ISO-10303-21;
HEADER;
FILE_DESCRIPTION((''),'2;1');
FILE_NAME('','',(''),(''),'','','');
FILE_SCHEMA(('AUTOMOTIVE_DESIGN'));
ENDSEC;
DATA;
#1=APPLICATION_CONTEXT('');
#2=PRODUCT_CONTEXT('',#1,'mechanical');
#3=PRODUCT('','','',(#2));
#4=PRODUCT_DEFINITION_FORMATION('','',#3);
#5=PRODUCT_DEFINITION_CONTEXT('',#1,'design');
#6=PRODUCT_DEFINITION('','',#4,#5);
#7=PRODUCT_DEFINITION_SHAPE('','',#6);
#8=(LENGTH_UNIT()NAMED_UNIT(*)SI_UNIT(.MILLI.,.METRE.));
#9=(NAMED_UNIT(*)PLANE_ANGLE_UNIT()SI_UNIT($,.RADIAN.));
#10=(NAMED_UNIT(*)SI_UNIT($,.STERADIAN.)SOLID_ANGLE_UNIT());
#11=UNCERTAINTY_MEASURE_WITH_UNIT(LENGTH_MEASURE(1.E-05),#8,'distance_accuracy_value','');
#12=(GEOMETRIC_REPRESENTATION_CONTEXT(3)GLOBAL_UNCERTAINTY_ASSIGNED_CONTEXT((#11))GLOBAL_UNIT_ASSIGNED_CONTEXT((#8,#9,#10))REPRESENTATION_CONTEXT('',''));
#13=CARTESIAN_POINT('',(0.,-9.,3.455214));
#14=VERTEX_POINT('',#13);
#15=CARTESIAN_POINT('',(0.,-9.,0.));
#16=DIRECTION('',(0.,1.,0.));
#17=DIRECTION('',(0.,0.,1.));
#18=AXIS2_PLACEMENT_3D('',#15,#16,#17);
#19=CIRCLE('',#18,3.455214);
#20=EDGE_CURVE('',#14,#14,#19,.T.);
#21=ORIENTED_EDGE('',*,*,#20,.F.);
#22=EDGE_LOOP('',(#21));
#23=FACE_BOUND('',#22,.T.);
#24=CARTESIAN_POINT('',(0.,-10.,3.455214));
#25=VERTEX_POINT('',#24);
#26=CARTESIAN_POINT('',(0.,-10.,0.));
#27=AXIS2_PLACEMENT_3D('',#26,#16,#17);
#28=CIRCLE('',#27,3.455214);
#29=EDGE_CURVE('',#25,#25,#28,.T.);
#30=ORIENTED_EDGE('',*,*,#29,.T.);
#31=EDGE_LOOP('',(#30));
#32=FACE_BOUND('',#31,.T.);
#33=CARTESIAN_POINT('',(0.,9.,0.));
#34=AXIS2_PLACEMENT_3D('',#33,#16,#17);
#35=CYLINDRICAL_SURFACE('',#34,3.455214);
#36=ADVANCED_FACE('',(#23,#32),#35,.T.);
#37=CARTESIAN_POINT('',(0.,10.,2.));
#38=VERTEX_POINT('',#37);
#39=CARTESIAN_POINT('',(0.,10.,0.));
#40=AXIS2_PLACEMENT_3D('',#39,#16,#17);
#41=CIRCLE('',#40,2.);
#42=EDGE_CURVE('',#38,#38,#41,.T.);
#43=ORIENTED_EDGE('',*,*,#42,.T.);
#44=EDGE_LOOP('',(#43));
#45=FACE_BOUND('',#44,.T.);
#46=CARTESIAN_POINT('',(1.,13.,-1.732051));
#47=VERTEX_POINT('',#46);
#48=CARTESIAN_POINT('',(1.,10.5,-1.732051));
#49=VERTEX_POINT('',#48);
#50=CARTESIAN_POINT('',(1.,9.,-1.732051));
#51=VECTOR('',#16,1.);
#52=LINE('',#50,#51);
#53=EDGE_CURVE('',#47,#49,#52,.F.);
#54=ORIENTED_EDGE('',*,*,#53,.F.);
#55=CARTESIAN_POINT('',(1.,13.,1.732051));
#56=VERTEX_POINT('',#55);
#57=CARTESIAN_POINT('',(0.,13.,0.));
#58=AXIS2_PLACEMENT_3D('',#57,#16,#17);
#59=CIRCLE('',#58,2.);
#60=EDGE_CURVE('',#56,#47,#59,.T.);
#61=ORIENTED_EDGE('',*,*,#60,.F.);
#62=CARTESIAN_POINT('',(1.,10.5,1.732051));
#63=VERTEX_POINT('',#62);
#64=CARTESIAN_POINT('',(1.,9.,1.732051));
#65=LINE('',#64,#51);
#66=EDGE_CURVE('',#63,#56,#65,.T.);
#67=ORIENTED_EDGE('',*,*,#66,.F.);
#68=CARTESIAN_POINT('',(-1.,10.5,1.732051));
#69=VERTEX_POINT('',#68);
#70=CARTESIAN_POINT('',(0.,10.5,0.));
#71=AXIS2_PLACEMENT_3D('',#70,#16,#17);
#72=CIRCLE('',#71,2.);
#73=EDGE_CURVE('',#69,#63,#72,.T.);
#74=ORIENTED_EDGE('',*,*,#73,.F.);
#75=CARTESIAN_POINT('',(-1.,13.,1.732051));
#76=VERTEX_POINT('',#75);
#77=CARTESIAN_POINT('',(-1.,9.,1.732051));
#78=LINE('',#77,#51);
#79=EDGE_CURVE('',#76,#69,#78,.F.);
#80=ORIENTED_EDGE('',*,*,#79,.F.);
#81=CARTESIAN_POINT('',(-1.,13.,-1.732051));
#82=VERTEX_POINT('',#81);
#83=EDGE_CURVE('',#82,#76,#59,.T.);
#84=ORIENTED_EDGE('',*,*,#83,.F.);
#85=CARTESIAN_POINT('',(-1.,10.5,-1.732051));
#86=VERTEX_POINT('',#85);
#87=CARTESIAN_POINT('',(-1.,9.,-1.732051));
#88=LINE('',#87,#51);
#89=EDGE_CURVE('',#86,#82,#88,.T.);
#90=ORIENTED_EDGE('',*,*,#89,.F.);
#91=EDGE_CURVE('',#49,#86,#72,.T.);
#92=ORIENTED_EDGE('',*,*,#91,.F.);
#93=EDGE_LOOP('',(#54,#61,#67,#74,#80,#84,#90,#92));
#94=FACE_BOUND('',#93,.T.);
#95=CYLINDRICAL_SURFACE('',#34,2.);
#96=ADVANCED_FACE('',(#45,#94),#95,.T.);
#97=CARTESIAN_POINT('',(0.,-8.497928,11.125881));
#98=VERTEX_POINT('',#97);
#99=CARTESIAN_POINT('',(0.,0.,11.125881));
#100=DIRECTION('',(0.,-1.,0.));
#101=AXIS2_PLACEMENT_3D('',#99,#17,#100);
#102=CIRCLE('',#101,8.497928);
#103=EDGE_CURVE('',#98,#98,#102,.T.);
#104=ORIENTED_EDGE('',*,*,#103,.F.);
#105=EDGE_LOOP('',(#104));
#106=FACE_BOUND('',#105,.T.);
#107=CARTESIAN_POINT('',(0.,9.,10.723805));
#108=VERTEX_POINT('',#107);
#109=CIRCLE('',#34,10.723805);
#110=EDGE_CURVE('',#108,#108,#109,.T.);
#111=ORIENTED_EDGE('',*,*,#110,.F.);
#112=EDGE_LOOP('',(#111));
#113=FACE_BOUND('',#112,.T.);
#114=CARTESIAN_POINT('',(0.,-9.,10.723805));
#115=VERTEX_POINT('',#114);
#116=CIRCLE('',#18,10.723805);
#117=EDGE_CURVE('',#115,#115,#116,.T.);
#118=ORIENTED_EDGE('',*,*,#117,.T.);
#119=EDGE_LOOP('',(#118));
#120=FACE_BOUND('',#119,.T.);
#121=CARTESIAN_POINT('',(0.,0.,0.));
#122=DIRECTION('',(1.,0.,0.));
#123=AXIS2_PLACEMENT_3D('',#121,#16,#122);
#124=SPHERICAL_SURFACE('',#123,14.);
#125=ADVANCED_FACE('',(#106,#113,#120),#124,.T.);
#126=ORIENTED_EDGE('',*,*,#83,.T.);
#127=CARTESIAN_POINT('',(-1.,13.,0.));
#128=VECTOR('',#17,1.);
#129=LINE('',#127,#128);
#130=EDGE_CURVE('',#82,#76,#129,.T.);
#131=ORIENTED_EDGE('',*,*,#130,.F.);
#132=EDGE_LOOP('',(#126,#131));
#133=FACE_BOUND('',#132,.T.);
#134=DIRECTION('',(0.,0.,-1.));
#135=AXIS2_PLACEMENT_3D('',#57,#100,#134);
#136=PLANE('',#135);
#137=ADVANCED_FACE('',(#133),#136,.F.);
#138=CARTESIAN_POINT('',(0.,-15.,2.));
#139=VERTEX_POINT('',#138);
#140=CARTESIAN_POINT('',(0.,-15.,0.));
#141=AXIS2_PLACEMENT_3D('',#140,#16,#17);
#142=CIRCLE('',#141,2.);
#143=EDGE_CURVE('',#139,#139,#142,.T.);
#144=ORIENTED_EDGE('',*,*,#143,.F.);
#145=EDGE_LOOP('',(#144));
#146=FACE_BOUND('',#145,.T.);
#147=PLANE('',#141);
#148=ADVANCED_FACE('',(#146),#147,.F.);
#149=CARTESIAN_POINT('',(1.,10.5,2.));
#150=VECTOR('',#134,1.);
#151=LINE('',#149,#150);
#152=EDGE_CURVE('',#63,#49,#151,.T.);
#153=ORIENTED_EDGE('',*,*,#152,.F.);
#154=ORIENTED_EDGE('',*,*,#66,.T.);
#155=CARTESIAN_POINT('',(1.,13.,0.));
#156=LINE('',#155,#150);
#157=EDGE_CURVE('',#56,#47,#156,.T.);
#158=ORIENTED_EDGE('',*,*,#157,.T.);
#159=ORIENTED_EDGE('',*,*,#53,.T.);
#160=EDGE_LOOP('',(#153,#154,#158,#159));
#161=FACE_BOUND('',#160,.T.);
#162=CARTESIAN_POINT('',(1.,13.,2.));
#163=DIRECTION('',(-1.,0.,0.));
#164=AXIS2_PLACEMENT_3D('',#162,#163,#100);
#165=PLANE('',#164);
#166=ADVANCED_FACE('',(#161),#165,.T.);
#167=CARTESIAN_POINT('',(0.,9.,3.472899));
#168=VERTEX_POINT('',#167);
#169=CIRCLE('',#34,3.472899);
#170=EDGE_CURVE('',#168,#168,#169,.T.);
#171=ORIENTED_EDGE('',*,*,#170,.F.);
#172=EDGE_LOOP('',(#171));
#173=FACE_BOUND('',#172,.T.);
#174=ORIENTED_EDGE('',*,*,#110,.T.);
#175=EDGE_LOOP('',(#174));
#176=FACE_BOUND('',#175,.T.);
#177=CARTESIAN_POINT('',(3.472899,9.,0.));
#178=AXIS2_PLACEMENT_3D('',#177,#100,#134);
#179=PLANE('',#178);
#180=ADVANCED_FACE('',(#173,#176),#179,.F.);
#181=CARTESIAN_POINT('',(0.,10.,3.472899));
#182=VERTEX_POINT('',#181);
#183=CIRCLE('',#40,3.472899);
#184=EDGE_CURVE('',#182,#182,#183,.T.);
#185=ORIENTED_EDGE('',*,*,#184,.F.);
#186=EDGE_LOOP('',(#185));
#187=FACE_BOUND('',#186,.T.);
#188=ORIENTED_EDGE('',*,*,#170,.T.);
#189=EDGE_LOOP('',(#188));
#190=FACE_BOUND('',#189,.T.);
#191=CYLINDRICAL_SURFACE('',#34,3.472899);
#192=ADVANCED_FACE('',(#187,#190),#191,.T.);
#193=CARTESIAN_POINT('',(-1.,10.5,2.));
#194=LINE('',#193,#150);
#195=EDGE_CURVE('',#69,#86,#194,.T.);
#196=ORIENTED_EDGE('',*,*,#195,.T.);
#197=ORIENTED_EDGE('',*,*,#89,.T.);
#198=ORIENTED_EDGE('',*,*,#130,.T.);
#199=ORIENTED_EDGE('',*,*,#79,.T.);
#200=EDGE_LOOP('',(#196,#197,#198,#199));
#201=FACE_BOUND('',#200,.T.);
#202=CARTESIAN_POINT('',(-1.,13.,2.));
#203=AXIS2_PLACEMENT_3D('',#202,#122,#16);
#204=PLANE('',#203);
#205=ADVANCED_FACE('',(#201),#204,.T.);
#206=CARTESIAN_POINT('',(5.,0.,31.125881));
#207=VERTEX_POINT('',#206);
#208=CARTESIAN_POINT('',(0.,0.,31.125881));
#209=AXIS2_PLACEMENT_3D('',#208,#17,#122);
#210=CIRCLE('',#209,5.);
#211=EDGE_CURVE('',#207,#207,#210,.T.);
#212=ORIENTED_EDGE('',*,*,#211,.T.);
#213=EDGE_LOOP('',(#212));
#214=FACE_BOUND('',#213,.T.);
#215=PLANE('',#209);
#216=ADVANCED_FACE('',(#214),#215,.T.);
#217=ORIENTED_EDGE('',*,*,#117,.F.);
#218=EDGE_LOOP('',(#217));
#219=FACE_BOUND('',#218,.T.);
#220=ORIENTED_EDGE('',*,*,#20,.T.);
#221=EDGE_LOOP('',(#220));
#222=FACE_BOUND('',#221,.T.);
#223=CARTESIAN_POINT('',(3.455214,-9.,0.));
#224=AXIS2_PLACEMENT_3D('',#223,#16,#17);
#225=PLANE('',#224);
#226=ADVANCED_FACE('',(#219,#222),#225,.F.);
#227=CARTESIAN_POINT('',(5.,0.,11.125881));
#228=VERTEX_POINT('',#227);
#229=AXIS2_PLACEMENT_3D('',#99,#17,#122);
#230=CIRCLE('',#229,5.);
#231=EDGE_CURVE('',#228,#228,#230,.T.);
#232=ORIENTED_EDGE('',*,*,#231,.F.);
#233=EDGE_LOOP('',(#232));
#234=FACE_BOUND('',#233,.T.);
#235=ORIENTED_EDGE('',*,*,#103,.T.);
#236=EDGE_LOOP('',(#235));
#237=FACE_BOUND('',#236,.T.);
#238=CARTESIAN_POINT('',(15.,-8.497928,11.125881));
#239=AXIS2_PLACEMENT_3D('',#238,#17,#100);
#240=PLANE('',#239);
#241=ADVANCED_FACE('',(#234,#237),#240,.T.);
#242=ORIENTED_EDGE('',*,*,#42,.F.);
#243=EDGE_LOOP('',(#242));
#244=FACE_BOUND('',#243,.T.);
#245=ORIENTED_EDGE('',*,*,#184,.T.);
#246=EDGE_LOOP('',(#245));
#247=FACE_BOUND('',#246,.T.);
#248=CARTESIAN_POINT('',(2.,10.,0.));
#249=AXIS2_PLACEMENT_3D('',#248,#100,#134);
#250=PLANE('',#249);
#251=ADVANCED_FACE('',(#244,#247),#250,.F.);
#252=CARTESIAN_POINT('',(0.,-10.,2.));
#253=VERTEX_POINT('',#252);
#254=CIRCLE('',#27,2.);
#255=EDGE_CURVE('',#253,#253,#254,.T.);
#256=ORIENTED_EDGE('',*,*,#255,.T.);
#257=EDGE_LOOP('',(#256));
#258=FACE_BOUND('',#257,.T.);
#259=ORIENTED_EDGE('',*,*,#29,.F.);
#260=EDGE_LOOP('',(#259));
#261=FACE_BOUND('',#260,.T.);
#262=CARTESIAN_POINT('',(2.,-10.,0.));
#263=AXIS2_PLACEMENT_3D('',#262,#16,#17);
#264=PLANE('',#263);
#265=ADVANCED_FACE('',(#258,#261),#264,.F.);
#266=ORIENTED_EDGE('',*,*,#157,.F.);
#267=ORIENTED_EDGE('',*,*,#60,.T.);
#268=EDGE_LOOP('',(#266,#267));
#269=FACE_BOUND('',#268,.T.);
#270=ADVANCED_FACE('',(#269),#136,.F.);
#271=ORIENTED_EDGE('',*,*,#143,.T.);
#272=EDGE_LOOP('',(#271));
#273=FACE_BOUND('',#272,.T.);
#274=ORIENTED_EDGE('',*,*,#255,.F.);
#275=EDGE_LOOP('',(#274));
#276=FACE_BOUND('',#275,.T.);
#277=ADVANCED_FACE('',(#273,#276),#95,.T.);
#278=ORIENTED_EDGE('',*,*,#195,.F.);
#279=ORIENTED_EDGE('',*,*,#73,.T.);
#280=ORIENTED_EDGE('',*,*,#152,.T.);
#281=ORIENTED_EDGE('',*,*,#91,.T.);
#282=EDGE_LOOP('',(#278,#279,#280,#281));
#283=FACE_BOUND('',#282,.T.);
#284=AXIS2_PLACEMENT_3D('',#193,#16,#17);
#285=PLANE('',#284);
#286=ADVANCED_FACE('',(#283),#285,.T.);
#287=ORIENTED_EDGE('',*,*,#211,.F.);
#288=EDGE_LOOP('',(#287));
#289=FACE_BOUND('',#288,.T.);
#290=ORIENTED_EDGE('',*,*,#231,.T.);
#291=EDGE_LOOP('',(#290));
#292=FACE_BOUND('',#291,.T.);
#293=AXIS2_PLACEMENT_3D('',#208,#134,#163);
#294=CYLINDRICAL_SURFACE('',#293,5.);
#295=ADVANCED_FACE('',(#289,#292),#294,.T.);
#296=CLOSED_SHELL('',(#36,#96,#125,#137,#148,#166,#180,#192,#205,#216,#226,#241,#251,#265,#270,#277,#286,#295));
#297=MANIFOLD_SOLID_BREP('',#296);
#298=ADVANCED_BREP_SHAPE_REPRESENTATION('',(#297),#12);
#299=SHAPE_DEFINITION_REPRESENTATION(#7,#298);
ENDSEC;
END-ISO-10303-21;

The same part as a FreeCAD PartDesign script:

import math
import FreeCAD as App
import Part
import Sketcher


def add_polygon(sketch, points):
    """Adds a closed chain of lines whose ends are joined by coincident constraints."""
    first, n = sketch.GeometryCount, len(points)
    for a, b in zip(points, points[1:] + points[:1]):
        sketch.addGeometry(Part.LineSegment(App.Vector(*a, 0), App.Vector(*b, 0)), False)
    for i in range(n):
        sketch.addConstraint(Sketcher.Constraint("Coincident", first + i, 2, first + (i + 1) % n, 1))

doc = App.newDocument("Part")
body = doc.addObject("PartDesign::Body", "Body")

sketch1 = body.newObject("Sketcher::SketchObject", "Sketch")
sketch1.AttachmentSupport = (doc.getObject("XY_Plane"), [""])
sketch1.MapMode = "FlatFace"
sketch1.addGeometry(Part.LineSegment(App.Vector(0, -15, 0), App.Vector(2, -15, 0)), False)
sketch1.addGeometry(Part.LineSegment(App.Vector(2, -15, 0), App.Vector(2, -10, 0)), False)
sketch1.addGeometry(Part.LineSegment(App.Vector(2, -10, 0), App.Vector(3.5, -10, 0)), False)
sketch1.addGeometry(Part.LineSegment(App.Vector(3.5, -10, 0), App.Vector(3.5, -9, 0)), False)
sketch1.addGeometry(Part.LineSegment(App.Vector(3.5, -9, 0), App.Vector(10.7, -9, 0)), False)
sketch1.addGeometry(Part.ArcOfCircle(Part.Circle(App.Vector(0, 0, 0), App.Vector(0, 0, 1), 14), math.radians(-40), math.radians(40)), False)
sketch1.addGeometry(Part.LineSegment(App.Vector(10.7, 9, 0), App.Vector(3.5, 9, 0)), False)
sketch1.addGeometry(Part.LineSegment(App.Vector(3.5, 9, 0), App.Vector(3.5, 10, 0)), False)
sketch1.addGeometry(Part.LineSegment(App.Vector(3.5, 10, 0), App.Vector(2, 10, 0)), False)
sketch1.addGeometry(Part.LineSegment(App.Vector(2, 10, 0), App.Vector(2, 13, 0)), False)
sketch1.addGeometry(Part.LineSegment(App.Vector(2, 13, 0), App.Vector(0, 13, 0)), False)
sketch1.addGeometry(Part.LineSegment(App.Vector(0, 13, 0), App.Vector(0, -15, 0)), False)
sketch1.addConstraint(Sketcher.Constraint("Coincident", 0, 2, 1, 1))
sketch1.addConstraint(Sketcher.Constraint("Coincident", 1, 2, 2, 1))
sketch1.addConstraint(Sketcher.Constraint("Coincident", 2, 2, 3, 1))
sketch1.addConstraint(Sketcher.Constraint("Coincident", 3, 2, 4, 1))
sketch1.addConstraint(Sketcher.Constraint("Coincident", 4, 2, 5, 1))
sketch1.addConstraint(Sketcher.Constraint("Coincident", 5, 2, 6, 1))
sketch1.addConstraint(Sketcher.Constraint("Coincident", 6, 2, 7, 1))
sketch1.addConstraint(Sketcher.Constraint("Coincident", 7, 2, 8, 1))
sketch1.addConstraint(Sketcher.Constraint("Coincident", 8, 2, 9, 1))
sketch1.addConstraint(Sketcher.Constraint("Coincident", 9, 2, 10, 1))
sketch1.addConstraint(Sketcher.Constraint("Coincident", 10, 2, 11, 1))
sketch1.addConstraint(Sketcher.Constraint("Coincident", 11, 2, 0, 1))
sketch1.addConstraint(Sketcher.Constraint("Horizontal", 0))
sketch1.addConstraint(Sketcher.Constraint("Vertical", 1))
sketch1.addConstraint(Sketcher.Constraint("Horizontal", 2))
sketch1.addConstraint(Sketcher.Constraint("Vertical", 3))
sketch1.addConstraint(Sketcher.Constraint("Horizontal", 4))
sketch1.addConstraint(Sketcher.Constraint("Horizontal", 6))
sketch1.addConstraint(Sketcher.Constraint("Vertical", 7))
sketch1.addConstraint(Sketcher.Constraint("Horizontal", 8))
sketch1.addConstraint(Sketcher.Constraint("Vertical", 9))
sketch1.addConstraint(Sketcher.Constraint("Horizontal", 10))
sketch1.addConstraint(Sketcher.Constraint("Vertical", 11))
sketch1.addConstraint(Sketcher.Constraint("Coincident", 5, 3, -1, 1))
sketch1.addConstraint(Sketcher.Constraint("Symmetric", 1, 2, 8, 2, -1))
sketch1.addConstraint(Sketcher.Constraint("PointOnObject", 10, 2, -2))
sketch1.addConstraint(Sketcher.Constraint("Vertical", 4, 2, 5, 2))
sketch1.addConstraint(Sketcher.Constraint("Radius", 5, 14.0))
sketch1.addConstraint(Sketcher.Constraint("DistanceX", 0, 1, 0, 2, 2.0))
sketch1.addConstraint(Sketcher.Constraint("DistanceY", 1, 1, 1, 2, 5.0))
sketch1.addConstraint(Sketcher.Constraint("DistanceY", 3, 1, 3, 2, 1.0))
sketch1.addConstraint(Sketcher.Constraint("DistanceY", 9, 1, 9, 2, 3.0))
sketch1.addConstraint(Sketcher.Constraint("DistanceY", 11, 2, 11, 1, 28.0))
sketch1.addConstraint(Sketcher.Constraint("DistanceX", 8, 2, 8, 1, 1.472899))
sketch1.addConstraint(Sketcher.Constraint("DistanceX", 4, 1, 4, 2, 7.268591))
revolution = body.newObject("PartDesign::Revolution", "Revolution")
revolution.Profile = sketch1
revolution.ReferenceAxis = (sketch1, ["V_Axis"])
revolution.Angle = 360

sketch2 = body.newObject("Sketcher::SketchObject", "Sketch001")
sketch2.AttachmentSupport = (doc.getObject("YZ_Plane"), [""])
sketch2.MapMode = "FlatFace"
add_polygon(sketch2, [(8, 19), (-8, 19), (-8, 11), (8, 11)])
sketch2.addConstraint(Sketcher.Constraint("Horizontal", 0))
sketch2.addConstraint(Sketcher.Constraint("Vertical", 1))
sketch2.addConstraint(Sketcher.Constraint("Horizontal", 2))
sketch2.addConstraint(Sketcher.Constraint("Vertical", 3))
sketch2.addConstraint(Sketcher.Constraint("DistanceY", 1, 2, 1, 1, 7.748239))
sketch2.addConstraint(Sketcher.Constraint("DistanceX", 0, 2, 0, 1, 16.995856))
sketch2.addConstraint(Sketcher.Constraint("DistanceY", -1, 1, 0, 2, 18.874119))
sketch2.addConstraint(Sketcher.Constraint("DistanceX", 0, 2, -1, 1, 8.497928))
pocket1 = body.newObject("PartDesign::Pocket", "Pocket")
pocket1.Profile = sketch2
pocket1.Type = "ThroughAll"
pocket1.Midplane = True

sketch3 = body.newObject("Sketcher::SketchObject", "Sketch002")
sketch3.AttachmentSupport = (doc.getObject("XY_Plane"), [""])
sketch3.MapMode = "FlatFace"
sketch3.AttachmentOffset = App.Placement(App.Vector(0, 0, 11.125881), App.Rotation())
sketch3.addGeometry(Part.Circle(App.Vector(0, 0, 0), App.Vector(0, 0, 1), 5), False)
sketch3.addConstraint(Sketcher.Constraint("Coincident", 0, 3, -1, 1))
sketch3.addConstraint(Sketcher.Constraint("Diameter", 0, 10.0))
pad1 = body.newObject("PartDesign::Pad", "Pad")
pad1.Profile = sketch3
pad1.Length = 20

sketch4 = body.newObject("Sketcher::SketchObject", "Sketch003")
sketch4.AttachmentSupport = (doc.getObject("XY_Plane"), [""])
sketch4.MapMode = "FlatFace"
add_polygon(sketch4, [(-1, 13), (-1, 10.5), (1, 10.5), (1, 13)])
sketch4.addConstraint(Sketcher.Constraint("Vertical", 0))
sketch4.addConstraint(Sketcher.Constraint("Horizontal", 1))
sketch4.addConstraint(Sketcher.Constraint("Vertical", 2))
sketch4.addConstraint(Sketcher.Constraint("Horizontal", 3))
sketch4.addConstraint(Sketcher.Constraint("DistanceX", 1, 1, 1, 2, 2.0))
sketch4.addConstraint(Sketcher.Constraint("DistanceY", 0, 2, 0, 1, 2.5))
sketch4.addConstraint(Sketcher.Constraint("DistanceX", 0, 2, -1, 1, 1.0))
sketch4.addConstraint(Sketcher.Constraint("DistanceY", -1, 1, 2, 2, 13.0))
pocket2 = body.newObject("PartDesign::Pocket", "Pocket001")
pocket2.Profile = sketch4
pocket2.Type = "ThroughAll"
pocket2.Midplane = True

doc.recompute()
